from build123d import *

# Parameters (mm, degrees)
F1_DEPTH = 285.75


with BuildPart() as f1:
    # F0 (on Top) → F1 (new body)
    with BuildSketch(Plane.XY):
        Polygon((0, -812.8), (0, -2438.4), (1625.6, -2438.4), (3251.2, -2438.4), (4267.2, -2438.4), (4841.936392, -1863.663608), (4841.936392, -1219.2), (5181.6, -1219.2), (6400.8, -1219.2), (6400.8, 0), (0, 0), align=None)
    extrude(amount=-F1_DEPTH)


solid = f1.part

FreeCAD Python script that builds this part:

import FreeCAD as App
import Part
import Sketcher
from FreeCAD import Vector
Q = App.Units.Quantity


def add_polygon(sketch, points):
    """Adds a closed chain of lines whose ends are joined by coincident constraints."""
    first, n = sketch.GeometryCount, len(points)
    for a, b in zip(points, points[1:] + points[:1]):
        sketch.addGeometry(Part.LineSegment(App.Vector(*a, 0), App.Vector(*b, 0)), False)
    for i in range(n):
        sketch.addConstraint(Sketcher.Constraint("Coincident", first + i, 2, first + (i + 1) % n, 1))

doc = App.newDocument("Part")
body = doc.addObject("PartDesign::Body", "Body")

sketch1 = body.newObject("Sketcher::SketchObject", "Sketch")
sketch1.AttachmentSupport = (doc.getObject("XY_Plane"), [""])
sketch1.MapMode = "FlatFace"
add_polygon(sketch1, [(0, -2438), (4267, -2438), (4842, -1864), (4842, -1219), (6401, -1219), (6401, 0), (0, 0)])
sketch1.addConstraint([
    Sketcher.Constraint("Horizontal", 0),
    Sketcher.Constraint("Vertical", 2),
    Sketcher.Constraint("Horizontal", 3),
    Sketcher.Constraint("Vertical", 4),
    Sketcher.Constraint("Horizontal", 5),
    Sketcher.Constraint("Vertical", 6),
    Sketcher.Constraint("Coincident", 5, 2, -1, 1),
    Sketcher.Constraint("DistanceX", 0, 1, 0, 2, Q("168 in")),
    Sketcher.Constraint("DistanceX", 5, 2, 5, 1, Q("252 in")),
    Sketcher.Constraint("DistanceY", 4, 1, 4, 2, Q("48 in")),
    Sketcher.Constraint("DistanceY", 6, 2, 6, 1, Q("96 in")),
    Sketcher.Constraint("Distance", 1, Q("32 in")),
    Sketcher.Constraint("Angle", 1, Q("45 deg")),
])
pad1 = body.newObject("PartDesign::Pad", "Pad")
pad1.Profile = sketch1
pad1.Length = Q("11.25 in")
pad1.Reversed = True

doc.recompute()
